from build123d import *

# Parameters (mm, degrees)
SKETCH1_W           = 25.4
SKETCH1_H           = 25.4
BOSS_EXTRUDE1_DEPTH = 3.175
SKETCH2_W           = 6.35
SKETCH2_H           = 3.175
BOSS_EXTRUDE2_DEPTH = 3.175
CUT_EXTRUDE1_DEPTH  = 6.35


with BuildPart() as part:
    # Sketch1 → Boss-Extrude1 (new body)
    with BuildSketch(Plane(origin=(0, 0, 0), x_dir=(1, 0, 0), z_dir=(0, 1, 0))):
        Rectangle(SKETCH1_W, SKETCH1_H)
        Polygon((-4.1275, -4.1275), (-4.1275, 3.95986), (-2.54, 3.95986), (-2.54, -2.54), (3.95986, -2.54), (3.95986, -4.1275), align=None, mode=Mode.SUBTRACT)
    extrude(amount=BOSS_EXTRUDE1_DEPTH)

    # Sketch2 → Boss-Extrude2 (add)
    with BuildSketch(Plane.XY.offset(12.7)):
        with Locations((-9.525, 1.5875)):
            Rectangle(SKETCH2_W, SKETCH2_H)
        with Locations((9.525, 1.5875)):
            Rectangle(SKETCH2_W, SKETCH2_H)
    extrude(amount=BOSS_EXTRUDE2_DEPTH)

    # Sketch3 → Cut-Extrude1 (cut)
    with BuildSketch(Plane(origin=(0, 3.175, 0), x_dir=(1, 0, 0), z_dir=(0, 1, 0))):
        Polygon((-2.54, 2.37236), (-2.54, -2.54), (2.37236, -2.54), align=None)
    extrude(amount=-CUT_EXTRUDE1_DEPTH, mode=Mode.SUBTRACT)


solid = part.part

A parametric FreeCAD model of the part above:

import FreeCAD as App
import Part
import Sketcher
from FreeCAD import Vector
Q = App.Units.Quantity

doc = App.newDocument("Part")
params = doc.addObject("Spreadsheet::Sheet", "Params")
for row, (alias, value) in enumerate([
    ("sketch1_width", "1 in"),
    ("sketch1_width2", "0.0625 in"),
    ("pad1_length", "0.125 in"),
    ("sketch2_width", "0.25 in"),
    ("sketch2_height", "0.125 in"),
    ("pad2_length", "0.125 in"),
    ("pocket1_length", "0.25 in"),
], start=1):
    params.set(f"A{row}", alias)
    params.set(f"B{row}", "=" + value)
    params.setAlias(f"B{row}", alias)

body = doc.addObject("PartDesign::Body", "Body")

# Sketch on XZ plane
sketch1 = doc.addObject("Sketcher::SketchObject", "Sketch")
body.addObject(sketch1)
sketch1.AttachmentSupport = (doc.XZ_Plane, [""])
sketch1.MapMode = "FlatFace"
sketch1.addGeometry([
    Part.LineSegment(Vector(-12.7, -12.7, 0), Vector(-12.7, 12.7, 0)),  # 0
    Part.LineSegment(Vector(-12.7, 12.7, 0), Vector(12.7, 12.7, 0)),  # 1
    Part.LineSegment(Vector(12.7, 12.7, 0), Vector(12.7, -12.7, 0)),  # 2
    Part.LineSegment(Vector(12.7, -12.7, 0), Vector(-12.7, -12.7, 0)),  # 3
    Part.LineSegment(Vector(4, 4.1, 0), Vector(-4.1, 4.1, 0)),  # 4
    Part.LineSegment(Vector(-4.1, 4.1, 0), Vector(-4.1, -4, 0)),  # 5
    Part.LineSegment(Vector(-4.1, -4, 0), Vector(-2.5, -4, 0)),  # 6
    Part.LineSegment(Vector(-2.5, -4, 0), Vector(-2.5, 2.5, 0)),  # 7
    Part.LineSegment(Vector(-2.5, 2.5, 0), Vector(4, 2.5, 0)),  # 8
    Part.LineSegment(Vector(4, 2.5, 0), Vector(4, 4.1, 0)),  # 9
], False)
sketch1.addConstraint([
    Sketcher.Constraint("Coincident", 0, 2, 1, 1),
    Sketcher.Constraint("Coincident", 1, 2, 2, 1),
    Sketcher.Constraint("Coincident", 2, 2, 3, 1),
    Sketcher.Constraint("Coincident", 3, 2, 0, 1),
    Sketcher.Constraint("Coincident", 4, 2, 5, 1),
    Sketcher.Constraint("Coincident", 5, 2, 6, 1),
    Sketcher.Constraint("Coincident", 6, 2, 7, 1),
    Sketcher.Constraint("Coincident", 7, 2, 8, 1),
    Sketcher.Constraint("Coincident", 8, 2, 9, 1),
    Sketcher.Constraint("Coincident", 9, 2, 4, 1),
    Sketcher.Constraint("Vertical", 0),
    Sketcher.Constraint("Horizontal", 1),
    Sketcher.Constraint("Vertical", 2),
    Sketcher.Constraint("Horizontal", 3),
    Sketcher.Constraint("Horizontal", 4),
    Sketcher.Constraint("Vertical", 5),
    Sketcher.Constraint("Horizontal", 6),
    Sketcher.Constraint("Vertical", 7),
    Sketcher.Constraint("Horizontal", 8),
    Sketcher.Constraint("Vertical", 9),
    Sketcher.Constraint("Symmetric", 0, 2, 2, 2, -1, 1),
    Sketcher.Constraint("Equal", 3, 0),
    Sketcher.Constraint("Equal", 4, 5),
    Sketcher.Constraint("Equal", 8, 7),
    Sketcher.Constraint("DistanceX", 1, 1, 1, 2, Q("1 in")),
    Sketcher.Constraint("DistanceX", 6, 2, -1, 1, Q("0.1 in")),
    Sketcher.Constraint("DistanceY", -1, 1, 7, 2, Q("0.1 in")),
    Sketcher.Constraint("DistanceX", 6, 1, 6, 2, Q("0.0625 in")),
    Sketcher.Constraint("DistanceX", 4, 2, 4, 1, Q("0.3184 in")),
])
sketch1.setExpression("Constraints[24]", "Params.sketch1_width")
sketch1.setExpression("Constraints[27]", "Params.sketch1_width2")
pad1 = doc.addObject("PartDesign::Pad", "Pad")
body.addObject(pad1)
pad1.Profile = sketch1
pad1.setExpression("Length", "Params.pad1_length")
pad1.Reversed = True

# Sketch on XY plane
sketch2 = doc.addObject("Sketcher::SketchObject", "Sketch001")
body.addObject(sketch2)
sketch2.AttachmentSupport = (doc.XY_Plane, [""])
sketch2.MapMode = "FlatFace"
sketch2.AttachmentOffset = App.Placement(Vector(0, 0, 0.5 * 25.4), App.Rotation())
sketch2.addGeometry([
    Part.LineSegment(Vector(-12.7, 3.2, 0), Vector(-12.7, 0, 0)),  # 0
    Part.LineSegment(Vector(-12.7, 0, 0), Vector(-6.3, 0, 0)),  # 1
    Part.LineSegment(Vector(-6.3, 0, 0), Vector(-6.3, 3.2, 0)),  # 2
    Part.LineSegment(Vector(-6.3, 3.2, 0), Vector(-12.7, 3.2, 0)),  # 3
    Part.LineSegment(Vector(6.3, 3.2, 0), Vector(6.3, 0, 0)),  # 4
    Part.LineSegment(Vector(6.3, 0, 0), Vector(12.7, 0, 0)),  # 5
    Part.LineSegment(Vector(12.7, 0, 0), Vector(12.7, 3.2, 0)),  # 6
    Part.LineSegment(Vector(12.7, 3.2, 0), Vector(6.3, 3.2, 0)),  # 7
], False)
sketch2.addConstraint([
    Sketcher.Constraint("Coincident", 0, 2, 1, 1),
    Sketcher.Constraint("Coincident", 1, 2, 2, 1),
    Sketcher.Constraint("Coincident", 2, 2, 3, 1),
    Sketcher.Constraint("Coincident", 3, 2, 0, 1),
    Sketcher.Constraint("Coincident", 4, 2, 5, 1),
    Sketcher.Constraint("Coincident", 5, 2, 6, 1),
    Sketcher.Constraint("Coincident", 6, 2, 7, 1),
    Sketcher.Constraint("Coincident", 7, 2, 4, 1),
    Sketcher.Constraint("Vertical", 0),
    Sketcher.Constraint("Horizontal", 1),
    Sketcher.Constraint("Vertical", 2),
    Sketcher.Constraint("Horizontal", 3),
    Sketcher.Constraint("Vertical", 4),
    Sketcher.Constraint("Horizontal", 5),
    Sketcher.Constraint("Vertical", 6),
    Sketcher.Constraint("Horizontal", 7),
    Sketcher.Constraint("Symmetric", 1, 2, 4, 2, -1, 1),
    Sketcher.Constraint("Symmetric", 0, 2, 5, 2, -2),
    Sketcher.Constraint("Horizontal", 3, 2, 6, 2),
    Sketcher.Constraint("DistanceX", 0, 2, 5, 2, Q("1 in")),
    Sketcher.Constraint("DistanceX", 1, 1, 1, 2, Q("0.25 in")),
    Sketcher.Constraint("DistanceY", 0, 2, 0, 1, Q("0.125 in")),
])
sketch2.setExpression("Constraints[20]", "Params.sketch2_width")
sketch2.setExpression("Constraints[21]", "Params.sketch2_height")
pad2 = doc.addObject("PartDesign::Pad", "Pad001")
body.addObject(pad2)
pad2.Profile = sketch2
pad2.setExpression("Length", "Params.pad2_length")

# Sketch on XZ plane
sketch3 = doc.addObject("Sketcher::SketchObject", "Sketch002")
body.addObject(sketch3)
sketch3.AttachmentSupport = (doc.XZ_Plane, [""])
sketch3.MapMode = "FlatFace"
sketch3.AttachmentOffset = App.Placement(Vector(0, 0, -0.125 * 25.4), App.Rotation())
sketch3.addGeometry([
    Part.LineSegment(Vector(-2.5, -2.4, 0), Vector(-2.5, 2.5, 0)),
    Part.LineSegment(Vector(-2.5, 2.5, 0), Vector(2.4, 2.5, 0)),
    Part.LineSegment(Vector(2.4, 2.5, 0), Vector(-2.5, -2.4, 0)),
], False)
sketch3.addConstraint([
    Sketcher.Constraint("Coincident", 0, 2, 1, 1),
    Sketcher.Constraint("Coincident", 1, 2, 2, 1),
    Sketcher.Constraint("Coincident", 2, 2, 0, 1),
    Sketcher.Constraint("Vertical", 0),
    Sketcher.Constraint("Horizontal", 1),
    Sketcher.Constraint("Equal", 1, 0),
    Sketcher.Constraint("DistanceX", 0, 2, -1, 1, Q("0.1 in")),
    Sketcher.Constraint("DistanceY", -1, 1, 0, 2, Q("0.1 in")),
    Sketcher.Constraint("DistanceX", 1, 1, 1, 2, Q("0.1934 in")),
])
pocket1 = doc.addObject("PartDesign::Pocket", "Pocket")
body.addObject(pocket1)
pocket1.Profile = sketch3
pocket1.setExpression("Length", "Params.pocket1_length")
pocket1.Reversed = True

doc.recompute()
